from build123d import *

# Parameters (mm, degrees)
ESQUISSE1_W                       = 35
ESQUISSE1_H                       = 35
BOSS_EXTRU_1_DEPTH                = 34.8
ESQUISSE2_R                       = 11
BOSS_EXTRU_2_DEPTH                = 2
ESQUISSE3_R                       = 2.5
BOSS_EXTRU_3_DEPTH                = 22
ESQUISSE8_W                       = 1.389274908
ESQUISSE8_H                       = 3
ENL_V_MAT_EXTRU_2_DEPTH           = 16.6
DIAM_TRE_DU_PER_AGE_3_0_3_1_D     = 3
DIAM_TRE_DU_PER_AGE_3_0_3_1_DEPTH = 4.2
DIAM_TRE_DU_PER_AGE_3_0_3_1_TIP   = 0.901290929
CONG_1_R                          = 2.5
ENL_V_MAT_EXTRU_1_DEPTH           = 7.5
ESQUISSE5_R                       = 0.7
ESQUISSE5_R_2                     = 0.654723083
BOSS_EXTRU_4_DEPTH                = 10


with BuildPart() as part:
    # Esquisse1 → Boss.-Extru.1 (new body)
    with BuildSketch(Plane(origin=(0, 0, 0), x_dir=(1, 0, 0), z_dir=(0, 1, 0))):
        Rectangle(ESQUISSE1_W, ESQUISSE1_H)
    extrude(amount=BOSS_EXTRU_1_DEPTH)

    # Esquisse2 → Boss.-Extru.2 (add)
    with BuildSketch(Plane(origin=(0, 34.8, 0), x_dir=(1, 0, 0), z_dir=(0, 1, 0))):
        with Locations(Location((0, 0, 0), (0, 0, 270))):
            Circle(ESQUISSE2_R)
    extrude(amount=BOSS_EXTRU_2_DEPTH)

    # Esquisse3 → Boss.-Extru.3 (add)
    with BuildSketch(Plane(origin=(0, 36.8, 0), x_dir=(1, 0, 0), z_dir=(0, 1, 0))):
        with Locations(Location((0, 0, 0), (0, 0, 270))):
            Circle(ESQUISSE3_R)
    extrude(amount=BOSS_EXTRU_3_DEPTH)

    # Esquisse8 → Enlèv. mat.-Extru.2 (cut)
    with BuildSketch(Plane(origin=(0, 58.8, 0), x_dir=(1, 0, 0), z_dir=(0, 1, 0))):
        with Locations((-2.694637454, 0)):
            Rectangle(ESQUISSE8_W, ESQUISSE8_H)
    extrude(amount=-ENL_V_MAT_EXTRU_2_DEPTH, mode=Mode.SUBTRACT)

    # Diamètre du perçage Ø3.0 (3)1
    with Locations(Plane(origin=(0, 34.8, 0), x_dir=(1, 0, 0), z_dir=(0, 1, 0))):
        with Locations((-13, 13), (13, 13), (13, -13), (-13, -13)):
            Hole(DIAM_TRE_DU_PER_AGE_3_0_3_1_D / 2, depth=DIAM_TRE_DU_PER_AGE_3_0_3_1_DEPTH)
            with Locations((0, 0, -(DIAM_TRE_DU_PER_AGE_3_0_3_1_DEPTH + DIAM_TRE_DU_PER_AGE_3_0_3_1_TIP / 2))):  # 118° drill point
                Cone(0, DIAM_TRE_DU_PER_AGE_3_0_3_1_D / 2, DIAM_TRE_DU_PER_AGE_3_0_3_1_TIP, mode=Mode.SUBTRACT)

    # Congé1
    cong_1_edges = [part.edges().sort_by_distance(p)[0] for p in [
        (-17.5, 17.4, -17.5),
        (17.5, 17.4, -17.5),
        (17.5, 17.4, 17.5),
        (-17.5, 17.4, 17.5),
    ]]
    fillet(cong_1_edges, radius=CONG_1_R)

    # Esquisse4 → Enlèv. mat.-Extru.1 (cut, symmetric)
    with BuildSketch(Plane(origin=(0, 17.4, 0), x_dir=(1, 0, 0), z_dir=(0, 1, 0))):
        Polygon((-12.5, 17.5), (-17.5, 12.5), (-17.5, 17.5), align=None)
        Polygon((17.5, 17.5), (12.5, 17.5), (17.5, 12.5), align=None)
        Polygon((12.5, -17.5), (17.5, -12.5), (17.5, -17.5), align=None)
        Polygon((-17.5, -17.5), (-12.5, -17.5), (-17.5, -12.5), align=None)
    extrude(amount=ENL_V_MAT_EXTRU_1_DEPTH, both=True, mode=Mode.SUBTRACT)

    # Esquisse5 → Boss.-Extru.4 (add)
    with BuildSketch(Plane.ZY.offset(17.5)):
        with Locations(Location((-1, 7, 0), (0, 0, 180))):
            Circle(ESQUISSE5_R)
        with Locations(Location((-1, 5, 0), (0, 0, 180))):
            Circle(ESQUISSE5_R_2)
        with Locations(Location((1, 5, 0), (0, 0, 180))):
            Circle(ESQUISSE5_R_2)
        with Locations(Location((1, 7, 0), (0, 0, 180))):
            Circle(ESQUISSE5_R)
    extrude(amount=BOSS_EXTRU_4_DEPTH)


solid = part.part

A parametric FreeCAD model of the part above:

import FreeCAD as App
import Part
import Sketcher
Q = App.Units.Quantity


def edges_at(feature, points):
    """Names of the edges that pass closest to the given points."""
    edges = feature.Shape.Edges
    near = lambda p: min(range(len(edges)), key=lambda i: edges[i].distToShape(Part.Vertex(*p))[0])
    return sorted({f"Edge{near(p) + 1}" for p in points})


def add_polygon(sketch, points):
    """Adds a closed chain of lines whose ends are joined by coincident constraints."""
    first, n = sketch.GeometryCount, len(points)
    for a, b in zip(points, points[1:] + points[:1]):
        sketch.addGeometry(Part.LineSegment(App.Vector(*a, 0), App.Vector(*b, 0)), False)
    for i in range(n):
        sketch.addConstraint(Sketcher.Constraint("Coincident", first + i, 2, first + (i + 1) % n, 1))

doc = App.newDocument("Part")
body = doc.addObject("PartDesign::Body", "Body")

sketch1 = body.newObject("Sketcher::SketchObject", "Sketch")
sketch1.AttachmentSupport = (doc.getObject("XZ_Plane"), [""])
sketch1.MapMode = "FlatFace"
add_polygon(sketch1, [(-18, -18), (-18, 18), (18, 18), (18, -18)])
sketch1.addConstraint([
    Sketcher.Constraint("Vertical", 0),
    Sketcher.Constraint("Horizontal", 1),
    Sketcher.Constraint("Vertical", 2),
    Sketcher.Constraint("Horizontal", 3),
    Sketcher.Constraint("Symmetric", 0, 2, 2, 2, -1, 1),
    Sketcher.Constraint("Equal", 3, 0),
    Sketcher.Constraint("DistanceX", 1, 1, 1, 2, Q("35 mm")),
])
pad1 = body.newObject("PartDesign::Pad", "Pad")
pad1.Profile = sketch1
pad1.Length = 34.8
pad1.Reversed = True

sketch2 = body.newObject("Sketcher::SketchObject", "Sketch001")
sketch2.AttachmentSupport = (doc.getObject("XZ_Plane"), [""])
sketch2.MapMode = "FlatFace"
sketch2.AttachmentOffset = App.Placement(App.Vector(0, 0, -34.8), App.Rotation())
sketch2.addGeometry(Part.Circle(App.Vector(0, 0, 0), App.Vector(0, 0, 1), 11), False)
sketch2.addConstraint([
    Sketcher.Constraint("Coincident", 0, 3, -1, 1),
    Sketcher.Constraint("Diameter", 0, Q("22 mm")),
])
pad2 = body.newObject("PartDesign::Pad", "Pad001")
pad2.Profile = sketch2
pad2.Length = 2
pad2.Reversed = True

sketch3 = body.newObject("Sketcher::SketchObject", "Sketch002")
sketch3.AttachmentSupport = (doc.getObject("XZ_Plane"), [""])
sketch3.MapMode = "FlatFace"
sketch3.AttachmentOffset = App.Placement(App.Vector(0, 0, -36.8), App.Rotation())
sketch3.addGeometry(Part.Circle(App.Vector(0, 0, 0), App.Vector(0, 0, 1), 2.5), False)
sketch3.addConstraint([
    Sketcher.Constraint("Coincident", 0, 3, -1, 1),
    Sketcher.Constraint("Diameter", 0, Q("5 mm")),
])
pad3 = body.newObject("PartDesign::Pad", "Pad002")
pad3.Profile = sketch3
pad3.Length = 22
pad3.Reversed = True

sketch4 = body.newObject("Sketcher::SketchObject", "Sketch003")
sketch4.AttachmentSupport = (doc.getObject("XZ_Plane"), [""])
sketch4.MapMode = "FlatFace"
sketch4.AttachmentOffset = App.Placement(App.Vector(0, 0, -58.8), App.Rotation())
add_polygon(sketch4, [(-3.4, -1.5), (-3.4, 1.5), (-2, 1.5), (-2, -1.5)])
sketch4.addConstraint([
    Sketcher.Constraint("Vertical", 0),
    Sketcher.Constraint("Horizontal", 1),
    Sketcher.Constraint("Vertical", 2),
    Sketcher.Constraint("Horizontal", 3),
    Sketcher.Constraint("DistanceY", 0, 1, 0, 2, Q("3 mm")),
    Sketcher.Constraint("DistanceX", 1, 2, -1, 1, Q("2 mm")),
    Sketcher.Constraint("DistanceY", -1, 1, 0, 2, Q("1.5 mm")),
    Sketcher.Constraint("DistanceX", 1, 1, 1, 2, Q("1.389275 mm")),
])
pocket1 = body.newObject("PartDesign::Pocket", "Pocket")
pocket1.Profile = sketch4
pocket1.Length = 16.6
pocket1.Reversed = True

sketch5 = body.newObject("Sketcher::SketchObject", "Sketch004")
sketch5.AttachmentSupport = (doc.getObject("XZ_Plane"), [""])
sketch5.MapMode = "FlatFace"
sketch5.AttachmentOffset = App.Placement(App.Vector(0, 0, -34.8), App.Rotation())
sketch5.addGeometry([
    Part.Circle(App.Vector(-13, -13, 0), App.Vector(0, 0, 1), 1.5),
    Part.Circle(App.Vector(13, -13, 0), App.Vector(0, 0, 1), 1.5),
    Part.Circle(App.Vector(13, 13, 0), App.Vector(0, 0, 1), 1.5),
    Part.Circle(App.Vector(-13, 13, 0), App.Vector(0, 0, 1), 1.5),
], False)
sketch5.addConstraint([
    Sketcher.Constraint("Equal", 0, 1),
    Sketcher.Constraint("Equal", 1, 2),
    Sketcher.Constraint("Equal", 2, 3),
    Sketcher.Constraint("Symmetric", 0, 3, 2, 3, -1, 1),
    Sketcher.Constraint("Symmetric", 1, 3, 3, 3, -1, 1),
    Sketcher.Constraint("Symmetric", 0, 3, 1, 3, -2),
    Sketcher.Constraint("Diameter", 0, Q("3 mm")),
    Sketcher.Constraint("DistanceX", 0, 3, -1, 1, Q("13 mm")),
    Sketcher.Constraint("DistanceY", 0, 3, -1, 1, Q("13 mm")),
])
doc.recompute()
hole = body.newObject("PartDesign::Hole", "Hole")
hole.Profile = sketch5
hole.ThreadType = "None"
hole.Diameter = 3
hole.DepthType = "Dimension"
hole.Depth = 4.2
hole.DrillPoint = "Angled"
hole.DrillPointAngle = 118
hole.Reversed = True
doc.recompute()

fillet = body.newObject("PartDesign::Fillet", "Fillet")
fillet.Base = (hole, edges_at(hole, [
    (-17.5, 17.4, -17.5),
    (17.5, 17.4, -17.5),
    (17.5, 17.4, 17.5),
    (-17.5, 17.4, 17.5),
]))
fillet.Radius = 2.5

sketch6 = body.newObject("Sketcher::SketchObject", "Sketch005")
sketch6.AttachmentSupport = (doc.getObject("XZ_Plane"), [""])
sketch6.MapMode = "FlatFace"
sketch6.AttachmentOffset = App.Placement(App.Vector(0, 0, -17.4), App.Rotation())
add_polygon(sketch6, [(-18, -12), (-12, -18), (-18, -18)])
add_polygon(sketch6, [(18, -18), (12, -18), (18, -12)])
add_polygon(sketch6, [(18, 12), (12, 18), (18, 18)])
add_polygon(sketch6, [(-18, 18), (-12, 18), (-18, 12)])
sketch6.addConstraint([
    Sketcher.Constraint("Horizontal", 1),
    Sketcher.Constraint("Vertical", 2),
    Sketcher.Constraint("Horizontal", 3),
    Sketcher.Constraint("Vertical", 5),
    Sketcher.Constraint("Horizontal", 7),
    Sketcher.Constraint("Vertical", 8),
    Sketcher.Constraint("Horizontal", 9),
    Sketcher.Constraint("Vertical", 11),
    Sketcher.Constraint("Symmetric", 0, 2, 6, 2, -1, 1),
    Sketcher.Constraint("Symmetric", 2, 2, 8, 2, -1, 1),
    Sketcher.Constraint("Symmetric", 3, 2, 9, 2, -1, 1),
    Sketcher.Constraint("Symmetric", 4, 2, 10, 2, -1, 1),
    Sketcher.Constraint("Symmetric", 0, 2, 3, 2, -2),
    Sketcher.Constraint("Symmetric", 2, 2, 4, 2, -2),
    Sketcher.Constraint("Perpendicular", 0, 4),
    Sketcher.Constraint("DistanceX", 1, 2, 1, 1, Q("5 mm")),
    Sketcher.Constraint("DistanceX", 0, 2, 3, 2, Q("25 mm")),
    Sketcher.Constraint("DistanceY", 4, 2, 6, 2, Q("30 mm")),
])
pocket2 = body.newObject("PartDesign::Pocket", "Pocket001")
pocket2.Profile = sketch6
pocket2.Length = 15
pocket2.Midplane = True

sketch7 = body.newObject("Sketcher::SketchObject", "Sketch006")
sketch7.AttachmentSupport = (doc.getObject("YZ_Plane"), [""])
sketch7.MapMode = "FlatFace"
sketch7.AttachmentOffset = App.Placement(App.Vector(0, 0, -17.5), App.Rotation())
sketch7.addGeometry([
    Part.Circle(App.Vector(7, -1, 0), App.Vector(0, 0, 1), 0.7),
    Part.Circle(App.Vector(5, -1, 0), App.Vector(0, 0, 1), 0.7),
    Part.Circle(App.Vector(5, 1, 0), App.Vector(0, 0, 1), 0.7),
    Part.Circle(App.Vector(7, 1, 0), App.Vector(0, 0, 1), 0.7),
], False)
sketch7.addConstraint([
    Sketcher.Constraint("Equal", 1, 2),
    Sketcher.Constraint("Equal", 0, 3),
    Sketcher.Constraint("Symmetric", 1, 3, 2, 3, -1),
    Sketcher.Constraint("Symmetric", 0, 3, 3, 3, -1),
    Sketcher.Constraint("Horizontal", 0, 3, 1, 3),
    Sketcher.Constraint("Diameter", 0, Q("1.4 mm")),
    Sketcher.Constraint("DistanceX", -1, 1, 0, 3, Q("7 mm")),
    Sketcher.Constraint("DistanceY", 0, 3, -1, 1, Q("1 mm")),
    Sketcher.Constraint("DistanceX", -1, 1, 1, 3, Q("5 mm")),
    Sketcher.Constraint("Diameter", 1, Q("1.309446 mm")),
])
pad4 = body.newObject("PartDesign::Pad", "Pad003")
pad4.Profile = sketch7
pad4.Length = 10
pad4.Reversed = True

doc.recompute()
